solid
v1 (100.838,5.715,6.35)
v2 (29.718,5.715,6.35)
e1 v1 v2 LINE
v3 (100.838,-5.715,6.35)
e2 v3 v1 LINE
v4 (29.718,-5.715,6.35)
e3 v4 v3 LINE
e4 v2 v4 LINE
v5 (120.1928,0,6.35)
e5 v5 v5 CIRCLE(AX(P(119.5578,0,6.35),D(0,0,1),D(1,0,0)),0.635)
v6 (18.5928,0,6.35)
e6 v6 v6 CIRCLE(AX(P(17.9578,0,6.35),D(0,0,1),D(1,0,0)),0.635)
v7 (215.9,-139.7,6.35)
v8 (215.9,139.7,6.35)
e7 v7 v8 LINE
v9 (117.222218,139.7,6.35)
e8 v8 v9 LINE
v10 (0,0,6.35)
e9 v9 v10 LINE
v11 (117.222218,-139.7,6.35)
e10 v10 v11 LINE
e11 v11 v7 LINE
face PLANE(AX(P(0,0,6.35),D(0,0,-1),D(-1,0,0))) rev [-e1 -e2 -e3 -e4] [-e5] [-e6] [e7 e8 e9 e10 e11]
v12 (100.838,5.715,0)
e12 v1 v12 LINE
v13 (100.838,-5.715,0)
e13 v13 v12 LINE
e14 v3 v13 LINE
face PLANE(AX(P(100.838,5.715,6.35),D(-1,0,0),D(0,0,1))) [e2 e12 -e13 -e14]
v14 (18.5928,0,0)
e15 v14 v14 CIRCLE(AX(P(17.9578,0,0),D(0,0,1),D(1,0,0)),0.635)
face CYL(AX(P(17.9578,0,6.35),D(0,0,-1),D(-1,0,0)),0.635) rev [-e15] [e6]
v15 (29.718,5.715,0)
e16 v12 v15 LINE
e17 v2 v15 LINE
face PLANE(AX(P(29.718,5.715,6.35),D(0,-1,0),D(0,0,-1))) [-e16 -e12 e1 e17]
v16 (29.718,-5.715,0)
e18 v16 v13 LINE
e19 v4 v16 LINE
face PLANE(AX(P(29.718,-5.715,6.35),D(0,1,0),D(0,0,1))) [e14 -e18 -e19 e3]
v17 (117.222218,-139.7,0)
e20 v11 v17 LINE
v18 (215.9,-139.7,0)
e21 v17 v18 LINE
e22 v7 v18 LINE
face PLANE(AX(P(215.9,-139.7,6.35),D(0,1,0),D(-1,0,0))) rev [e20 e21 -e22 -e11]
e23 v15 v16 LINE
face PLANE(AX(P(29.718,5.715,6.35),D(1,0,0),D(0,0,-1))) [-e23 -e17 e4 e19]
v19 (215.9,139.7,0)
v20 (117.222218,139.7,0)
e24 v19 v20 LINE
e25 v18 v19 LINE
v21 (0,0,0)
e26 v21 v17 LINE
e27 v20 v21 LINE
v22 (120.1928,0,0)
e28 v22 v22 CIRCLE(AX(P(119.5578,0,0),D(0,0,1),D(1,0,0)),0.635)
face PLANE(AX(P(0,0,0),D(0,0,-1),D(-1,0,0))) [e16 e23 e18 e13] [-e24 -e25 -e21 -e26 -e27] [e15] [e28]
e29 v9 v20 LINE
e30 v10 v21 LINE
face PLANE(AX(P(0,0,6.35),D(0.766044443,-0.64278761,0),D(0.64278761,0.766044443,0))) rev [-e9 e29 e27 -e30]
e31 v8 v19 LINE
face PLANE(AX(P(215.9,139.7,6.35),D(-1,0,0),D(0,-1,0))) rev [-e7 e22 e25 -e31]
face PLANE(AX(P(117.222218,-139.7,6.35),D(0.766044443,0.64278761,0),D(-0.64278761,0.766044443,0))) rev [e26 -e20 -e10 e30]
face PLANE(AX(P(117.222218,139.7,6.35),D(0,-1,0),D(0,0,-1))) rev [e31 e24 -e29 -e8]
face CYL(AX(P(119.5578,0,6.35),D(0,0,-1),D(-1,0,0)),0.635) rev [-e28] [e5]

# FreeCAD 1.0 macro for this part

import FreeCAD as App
import Part
import Sketcher
from FreeCAD import Vector
Q = App.Units.Quantity

doc = App.newDocument("Part")
body = doc.addObject("PartDesign::Body", "Body")

# Sketch on XY plane
sketch1 = body.newObject("Sketcher::SketchObject", "Sketch")
sketch1.AttachmentSupport = (doc.getObject("XY_Plane"), [""])
sketch1.MapMode = "FlatFace"
sketch1.addGeometry([
    Part.LineSegment(Vector(216, -140, 0), Vector(216, 140, 0)),  # 0
    Part.LineSegment(Vector(216, 140, 0), Vector(117, 140, 0)),  # 1
    Part.LineSegment(Vector(117, 140, 0), Vector(0, 0, 0)),  # 2
    Part.LineSegment(Vector(0, 0, 0), Vector(117, -140, 0)),  # 3
    Part.LineSegment(Vector(117, -140, 0), Vector(216, -140, 0)),  # 4
], False)
sketch1.addConstraint([
    Sketcher.Constraint("Coincident", 0, 2, 1, 1),
    Sketcher.Constraint("Coincident", 1, 2, 2, 1),
    Sketcher.Constraint("Coincident", 2, 2, 3, 1),
    Sketcher.Constraint("Coincident", 3, 2, 4, 1),
    Sketcher.Constraint("Coincident", 4, 2, 0, 1),
    Sketcher.Constraint("Vertical", 0),
    Sketcher.Constraint("Horizontal", 1),
    Sketcher.Constraint("Horizontal", 4),
    Sketcher.Constraint("Coincident", 2, 2, -1, 1),
    Sketcher.Constraint("Symmetric", 1, 2, 3, 2, -1),
    Sketcher.Constraint("DistanceY", 0, 1, 0, 2, Q("11 in")),
    Sketcher.Constraint("Angle", 2, Q("-130 deg")),
    Sketcher.Constraint("DistanceX", -1, 1, 0, 2, Q("8.5 in")),
])
pad1 = body.newObject("PartDesign::Pad", "Pad")
pad1.Profile = sketch1
pad1.Length = Q("0.25 in")

# Sketch on XY plane
sketch2 = body.newObject("Sketcher::SketchObject", "Sketch001")
sketch2.AttachmentSupport = (doc.getObject("XY_Plane"), [""])
sketch2.MapMode = "FlatFace"
sketch2.addGeometry([
    Part.LineSegment(Vector(30, 6, 0), Vector(30, -6, 0)),
    Part.LineSegment(Vector(30, -6, 0), Vector(101, -6, 0)),
    Part.LineSegment(Vector(101, -6, 0), Vector(101, 6, 0)),
    Part.LineSegment(Vector(101, 6, 0), Vector(30, 6, 0)),
], False)
sketch2.addConstraint([
    Sketcher.Constraint("Coincident", 0, 2, 1, 1),
    Sketcher.Constraint("Coincident", 1, 2, 2, 1),
    Sketcher.Constraint("Coincident", 2, 2, 3, 1),
    Sketcher.Constraint("Coincident", 3, 2, 0, 1),
    Sketcher.Constraint("Vertical", 0),
    Sketcher.Constraint("Horizontal", 1),
    Sketcher.Constraint("Vertical", 2),
    Sketcher.Constraint("Horizontal", 3),
    Sketcher.Constraint("DistanceX", 1, 1, 1, 2, Q("2.8 in")),
    Sketcher.Constraint("DistanceY", 0, 2, 0, 1, Q("0.45 in")),
    Sketcher.Constraint("DistanceX", -1, 1, 0, 2, Q("1.17 in")),
    Sketcher.Constraint("DistanceY", 0, 2, -1, 1, Q("0.225 in")),
])
pocket1 = body.newObject("PartDesign::Pocket", "Pocket")
pocket1.Profile = sketch2
pocket1.Type = "ThroughAll"
pocket1.Reversed = True

# Sketch on XY plane
sketch3 = body.newObject("Sketcher::SketchObject", "Sketch002")
sketch3.AttachmentSupport = (doc.getObject("XY_Plane"), [""])
sketch3.MapMode = "FlatFace"
sketch3.addGeometry([
    Part.Circle(Vector(18, 0, 0), Vector(0, 0, 1), 0.6),
    Part.Circle(Vector(119.6, 0, 0), Vector(0, 0, 1), 0.6),
], False)
sketch3.addConstraint([
    Sketcher.Constraint("Equal", 0, 1),
    Sketcher.Constraint("PointOnObject", 0, 3, -1),
    Sketcher.Constraint("PointOnObject", 1, 3, -1),
    Sketcher.Constraint("Diameter", 0, Q("0.05 in")),
    Sketcher.Constraint("DistanceX", 0, 3, 1, 3, Q("4 in")),
    Sketcher.Constraint("DistanceX", -1, 1, 0, 3, Q("0.707 in")),
])
pocket2 = body.newObject("PartDesign::Pocket", "Pocket001")
pocket2.Profile = sketch3
pocket2.Type = "ThroughAll"
pocket2.Reversed = True

doc.recompute()
